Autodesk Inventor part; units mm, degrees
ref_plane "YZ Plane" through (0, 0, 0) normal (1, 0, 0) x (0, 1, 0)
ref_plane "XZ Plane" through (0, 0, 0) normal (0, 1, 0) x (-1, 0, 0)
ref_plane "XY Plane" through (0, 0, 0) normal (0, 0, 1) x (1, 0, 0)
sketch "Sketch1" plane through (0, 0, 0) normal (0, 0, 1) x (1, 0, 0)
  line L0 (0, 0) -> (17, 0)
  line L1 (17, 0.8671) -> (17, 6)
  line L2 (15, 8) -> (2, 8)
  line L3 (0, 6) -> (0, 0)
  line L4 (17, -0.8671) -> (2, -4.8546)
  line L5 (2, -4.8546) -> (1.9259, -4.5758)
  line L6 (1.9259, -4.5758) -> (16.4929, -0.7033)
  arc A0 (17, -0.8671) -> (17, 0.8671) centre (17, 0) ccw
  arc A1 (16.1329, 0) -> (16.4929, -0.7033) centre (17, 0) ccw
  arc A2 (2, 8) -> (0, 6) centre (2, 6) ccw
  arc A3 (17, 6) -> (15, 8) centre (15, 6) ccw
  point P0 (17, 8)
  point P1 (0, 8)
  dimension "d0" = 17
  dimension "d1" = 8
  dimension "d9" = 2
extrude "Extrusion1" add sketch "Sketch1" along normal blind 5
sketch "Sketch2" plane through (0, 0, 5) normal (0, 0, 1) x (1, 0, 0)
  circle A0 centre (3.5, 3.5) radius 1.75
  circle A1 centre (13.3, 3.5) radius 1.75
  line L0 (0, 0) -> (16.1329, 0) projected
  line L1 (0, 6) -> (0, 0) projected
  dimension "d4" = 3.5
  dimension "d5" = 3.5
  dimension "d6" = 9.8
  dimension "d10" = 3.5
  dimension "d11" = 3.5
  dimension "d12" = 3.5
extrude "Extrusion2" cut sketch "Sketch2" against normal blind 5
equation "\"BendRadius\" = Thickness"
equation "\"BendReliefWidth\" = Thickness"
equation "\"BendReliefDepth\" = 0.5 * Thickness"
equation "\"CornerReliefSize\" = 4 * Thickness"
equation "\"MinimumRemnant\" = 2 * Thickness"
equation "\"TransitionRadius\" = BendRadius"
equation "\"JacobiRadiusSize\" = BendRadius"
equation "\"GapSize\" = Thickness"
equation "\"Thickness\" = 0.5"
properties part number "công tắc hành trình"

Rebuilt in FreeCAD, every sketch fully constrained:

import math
import FreeCAD as App
import Part
import Sketcher
Q = App.Units.Quantity

doc = App.newDocument("Part")
body = doc.addObject("PartDesign::Body", "Body")

# Sketch on XY plane
sketch1 = body.newObject("Sketcher::SketchObject", "Sketch")
sketch1.AttachmentSupport = (doc.getObject("XY_Plane"), [""])
sketch1.MapMode = "FlatFace"
sketch1.addGeometry([
    Part.LineSegment(App.Vector(0, 6, 0), App.Vector(0, 0, 0)),  # 0
    Part.LineSegment(App.Vector(0, 0, 0), App.Vector(16.13, 0, 0)),  # 1
    Part.ArcOfCircle(Part.Circle(App.Vector(17, 0, 0), App.Vector(0, 0, 1), 0.87), math.radians(180), math.radians(234)),  # 2
    Part.LineSegment(App.Vector(16.49, -0.7, 0), App.Vector(1.93, -4.58, 0)),  # 3
    Part.LineSegment(App.Vector(1.93, -4.58, 0), App.Vector(2, -4.85, 0)),  # 4
    Part.LineSegment(App.Vector(2, -4.85, 0), App.Vector(17, -0.87, 0)),  # 5
    Part.ArcOfCircle(Part.Circle(App.Vector(17, 0, 0), App.Vector(0, 0, 1), 0.87), math.radians(-90), math.radians(90)),  # 6
    Part.LineSegment(App.Vector(17, 0.87, 0), App.Vector(17, 6, 0)),  # 7
    Part.ArcOfCircle(Part.Circle(App.Vector(15, 6, 0), App.Vector(0, 0, 1), 2), math.radians(0), math.radians(90)),  # 8
    Part.LineSegment(App.Vector(15, 8, 0), App.Vector(2, 8, 0)),  # 9
    Part.ArcOfCircle(Part.Circle(App.Vector(2, 6, 0), App.Vector(0, 0, 1), 2), math.radians(90), math.radians(180)),  # 10
], False)
sketch1.addConstraint([
    Sketcher.Constraint("Coincident", 0, 2, 1, 1),
    Sketcher.Constraint("Coincident", 1, 2, 2, 1),
    Sketcher.Constraint("Coincident", 2, 2, 3, 1),
    Sketcher.Constraint("Coincident", 3, 2, 4, 1),
    Sketcher.Constraint("Coincident", 4, 2, 5, 1),
    Sketcher.Constraint("Coincident", 5, 2, 6, 1),
    Sketcher.Constraint("Coincident", 6, 2, 7, 1),
    Sketcher.Constraint("Tangent", 7, 2, 8, 1),
    Sketcher.Constraint("Tangent", 8, 2, 9, 1),
    Sketcher.Constraint("Tangent", 9, 2, 10, 1),
    Sketcher.Constraint("Tangent", 10, 2, 0, 1),
    Sketcher.Constraint("Vertical", 0),
    Sketcher.Constraint("Horizontal", 1),
    Sketcher.Constraint("Vertical", 7),
    Sketcher.Constraint("Horizontal", 9),
    Sketcher.Constraint("Coincident", 0, 2, -1, 1),
    Sketcher.Constraint("Coincident", 6, 3, 2, 3),
    Sketcher.Constraint("Equal", 2, 6),
    Sketcher.Constraint("Equal", 8, 10),
    Sketcher.Constraint("Symmetric", 5, 2, 6, 2, -1),
    Sketcher.Constraint("Perpendicular", 3, 4),
    Sketcher.Constraint("Perpendicular", 4, 5),
    Sketcher.Constraint("Vertical", 10, 3, 4, 2),
    Sketcher.Constraint("Vertical", 6, 3, 5, 2),
    Sketcher.Constraint("Radius", 8, Q("2 mm")),
    Sketcher.Constraint("DistanceX", -1, 1, 2, 3, Q("17 mm")),
    Sketcher.Constraint("DistanceY", -1, 1, 8, 2, Q("8 mm")),
    Sketcher.Constraint("Radius", 2, Q("0.867 mm")),
    Sketcher.Constraint("DistanceX", 1, 2, 2, 2, Q("0.36 mm")),
    Sketcher.Constraint("Distance", 3, Q("15.073 mm")),
])
pad1 = body.newObject("PartDesign::Pad", "Pad")
pad1.Profile = sketch1
pad1.Length = 5

# Sketch on XY plane
sketch2 = body.newObject("Sketcher::SketchObject", "Sketch001")
sketch2.AttachmentSupport = (doc.getObject("XY_Plane"), [""])
sketch2.MapMode = "FlatFace"
sketch2.AttachmentOffset = App.Placement(App.Vector(0, 0, 5), App.Rotation())
sketch2.addGeometry([
    Part.Circle(App.Vector(3.5, 3.5, 0), App.Vector(0, 0, 1), 1.8),
    Part.Circle(App.Vector(13.3, 3.5, 0), App.Vector(0, 0, 1), 1.8),
], False)
sketch2.addConstraint([
    Sketcher.Constraint("Equal", 0, 1),
    Sketcher.Constraint("Horizontal", 0, 3, 1, 3),
    Sketcher.Constraint("Diameter", 0, Q("3.5 mm")),
    Sketcher.Constraint("DistanceX", -1, 1, 0, 3, Q("3.5 mm")),
    Sketcher.Constraint("DistanceY", -1, 1, 0, 3, Q("3.5 mm")),
    Sketcher.Constraint("DistanceX", 0, 3, 1, 3, Q("9.8 mm")),
])
pocket1 = body.newObject("PartDesign::Pocket", "Pocket")
pocket1.Profile = sketch2
pocket1.Length = 5

doc.recompute()
